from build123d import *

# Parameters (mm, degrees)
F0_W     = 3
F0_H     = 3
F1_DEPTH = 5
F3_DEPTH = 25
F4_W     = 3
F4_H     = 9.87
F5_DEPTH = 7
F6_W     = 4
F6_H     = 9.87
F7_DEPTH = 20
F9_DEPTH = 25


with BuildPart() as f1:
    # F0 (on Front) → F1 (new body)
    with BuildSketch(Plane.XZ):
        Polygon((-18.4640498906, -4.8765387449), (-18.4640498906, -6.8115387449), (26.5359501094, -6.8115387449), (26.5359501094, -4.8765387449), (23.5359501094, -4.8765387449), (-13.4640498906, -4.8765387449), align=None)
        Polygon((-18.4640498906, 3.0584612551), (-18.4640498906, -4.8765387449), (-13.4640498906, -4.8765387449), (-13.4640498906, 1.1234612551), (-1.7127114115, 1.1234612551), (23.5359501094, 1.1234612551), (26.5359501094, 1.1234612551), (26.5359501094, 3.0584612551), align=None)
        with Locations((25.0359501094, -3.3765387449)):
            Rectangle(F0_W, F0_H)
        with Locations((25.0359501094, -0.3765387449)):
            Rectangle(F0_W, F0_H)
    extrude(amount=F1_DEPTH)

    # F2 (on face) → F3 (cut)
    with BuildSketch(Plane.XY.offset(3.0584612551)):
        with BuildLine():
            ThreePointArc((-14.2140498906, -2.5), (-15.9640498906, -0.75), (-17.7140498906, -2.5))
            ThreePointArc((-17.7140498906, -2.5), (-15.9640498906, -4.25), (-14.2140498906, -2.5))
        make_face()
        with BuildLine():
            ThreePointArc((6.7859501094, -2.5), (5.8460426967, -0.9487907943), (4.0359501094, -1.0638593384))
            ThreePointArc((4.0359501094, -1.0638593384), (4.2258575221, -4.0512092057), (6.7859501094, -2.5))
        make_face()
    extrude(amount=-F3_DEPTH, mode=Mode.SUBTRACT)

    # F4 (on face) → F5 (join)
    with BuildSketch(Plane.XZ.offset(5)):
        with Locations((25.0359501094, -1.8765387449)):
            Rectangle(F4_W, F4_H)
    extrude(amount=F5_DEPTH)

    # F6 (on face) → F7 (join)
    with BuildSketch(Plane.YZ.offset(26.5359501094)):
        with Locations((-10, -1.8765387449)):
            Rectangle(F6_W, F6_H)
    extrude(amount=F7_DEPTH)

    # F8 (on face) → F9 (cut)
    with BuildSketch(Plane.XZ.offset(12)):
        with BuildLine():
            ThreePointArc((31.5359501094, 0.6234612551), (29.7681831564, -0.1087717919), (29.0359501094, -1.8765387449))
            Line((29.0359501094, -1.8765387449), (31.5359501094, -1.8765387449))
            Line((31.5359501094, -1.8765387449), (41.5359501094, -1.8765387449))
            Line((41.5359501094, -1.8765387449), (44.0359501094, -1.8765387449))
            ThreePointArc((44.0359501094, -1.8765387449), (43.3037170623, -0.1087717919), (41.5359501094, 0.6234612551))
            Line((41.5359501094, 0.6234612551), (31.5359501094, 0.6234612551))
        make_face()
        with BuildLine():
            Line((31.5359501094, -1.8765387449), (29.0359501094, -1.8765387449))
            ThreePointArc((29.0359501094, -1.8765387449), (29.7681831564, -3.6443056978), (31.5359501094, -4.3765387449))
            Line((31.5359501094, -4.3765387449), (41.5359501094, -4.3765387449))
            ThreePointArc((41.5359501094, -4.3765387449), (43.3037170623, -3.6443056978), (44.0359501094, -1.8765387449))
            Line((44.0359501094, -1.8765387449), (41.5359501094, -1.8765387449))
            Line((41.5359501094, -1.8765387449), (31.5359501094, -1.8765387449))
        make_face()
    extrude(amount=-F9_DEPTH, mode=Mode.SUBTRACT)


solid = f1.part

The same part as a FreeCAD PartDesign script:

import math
import FreeCAD as App
import Part
import Sketcher
from FreeCAD import Vector

doc = App.newDocument("Part")
body = doc.addObject("PartDesign::Body", "Body")

sketch1 = body.newObject("Sketcher::SketchObject", "Sketch")
sketch1.AttachmentSupport = (doc.getObject("XZ_Plane"), [""])
sketch1.MapMode = "FlatFace"
sketch1.addGeometry(Part.LineSegment(Vector(-18.46405, -6.811539, 0), Vector(26.53595, -6.811539, 0)), False)
sketch1.addGeometry(Part.LineSegment(Vector(26.53595, -6.811539, 0), Vector(26.53595, 3.058461, 0)), False)
sketch1.addGeometry(Part.LineSegment(Vector(26.53595, 3.058461, 0), Vector(-18.46405, 3.058461, 0)), False)
sketch1.addGeometry(Part.LineSegment(Vector(-18.46405, 3.058461, 0), Vector(-18.46405, -6.811539, 0)), False)
sketch1.addGeometry(Part.LineSegment(Vector(23.53595, -4.876539, 0), Vector(-13.46405, -4.876539, 0)), False)
sketch1.addGeometry(Part.LineSegment(Vector(-13.46405, -4.876539, 0), Vector(-13.46405, 1.123461, 0)), False)
sketch1.addGeometry(Part.LineSegment(Vector(-13.46405, 1.123461, 0), Vector(23.53595, 1.123461, 0)), False)
sketch1.addGeometry(Part.LineSegment(Vector(23.53595, 1.123461, 0), Vector(23.53595, -4.876539, 0)), False)
sketch1.addConstraint(Sketcher.Constraint("Coincident", 0, 2, 1, 1))
sketch1.addConstraint(Sketcher.Constraint("Coincident", 1, 2, 2, 1))
sketch1.addConstraint(Sketcher.Constraint("Coincident", 2, 2, 3, 1))
sketch1.addConstraint(Sketcher.Constraint("Coincident", 3, 2, 0, 1))
sketch1.addConstraint(Sketcher.Constraint("Coincident", 4, 2, 5, 1))
sketch1.addConstraint(Sketcher.Constraint("Coincident", 5, 2, 6, 1))
sketch1.addConstraint(Sketcher.Constraint("Coincident", 6, 2, 7, 1))
sketch1.addConstraint(Sketcher.Constraint("Coincident", 7, 2, 4, 1))
sketch1.addConstraint(Sketcher.Constraint("Horizontal", 0))
sketch1.addConstraint(Sketcher.Constraint("Vertical", 1))
sketch1.addConstraint(Sketcher.Constraint("Horizontal", 2))
sketch1.addConstraint(Sketcher.Constraint("Vertical", 3))
sketch1.addConstraint(Sketcher.Constraint("Horizontal", 4))
sketch1.addConstraint(Sketcher.Constraint("Vertical", 5))
sketch1.addConstraint(Sketcher.Constraint("Horizontal", 6))
sketch1.addConstraint(Sketcher.Constraint("Vertical", 7))
sketch1.addConstraint(Sketcher.Constraint("DistanceX", 0, 1, 0, 2, 45.0))
sketch1.addConstraint(Sketcher.Constraint("DistanceX", 4, 2, 4, 1, 37.0))
sketch1.addConstraint(Sketcher.Constraint("DistanceY", 5, 1, 5, 2, 6.0))
sketch1.addConstraint(Sketcher.Constraint("DistanceX", 3, 2, 4, 2, 5.0))
sketch1.addConstraint(Sketcher.Constraint("DistanceY", 1, 1, 1, 2, 9.87))
sketch1.addConstraint(Sketcher.Constraint("DistanceY", 3, 2, 4, 2, 1.935))
sketch1.addConstraint(Sketcher.Constraint("DistanceX", -1, 1, 0, 2, 26.53595))
sketch1.addConstraint(Sketcher.Constraint("DistanceY", 0, 2, -1, 1, 6.811539))
pad1 = body.newObject("PartDesign::Pad", "Pad")
pad1.Profile = sketch1
pad1.Length = 5

sketch2 = body.newObject("Sketcher::SketchObject", "Sketch001")
sketch2.AttachmentSupport = (doc.getObject("XY_Plane"), [""])
sketch2.MapMode = "FlatFace"
sketch2.AttachmentOffset = App.Placement(Vector(0, 0, 3.058461), App.Rotation())
sketch2.addGeometry(Part.Circle(Vector(-15.96405, -2.5, 0), Vector(0, 0, 1), 1.75), False)
sketch2.addGeometry(Part.ArcOfCircle(Part.Circle(Vector(5.03595, -2.5, 0), Vector(0, 0, 1), 1.75), math.radians(0), math.radians(124.849905)), False)
sketch2.addGeometry(Part.ArcOfCircle(Part.Circle(Vector(5.03595, -2.5, 0), Vector(0, 0, 1), 1.75), math.radians(124.849905), math.radians(360)), False)
sketch2.addConstraint(Sketcher.Constraint("Tangent", 1, 1, 2, 2))
sketch2.addConstraint(Sketcher.Constraint("Coincident", 2, 1, 1, 2))
sketch2.addConstraint(Sketcher.Constraint("Equal", 0, 1))
sketch2.addConstraint(Sketcher.Constraint("Horizontal", 0, 3, 1, 3))
sketch2.addConstraint(Sketcher.Constraint("Horizontal", 2, 3, 1, 1))
sketch2.addConstraint(Sketcher.Constraint("Diameter", 0, 3.5))
sketch2.addConstraint(Sketcher.Constraint("DistanceX", 0, 3, 1, 3, 21.0))
sketch2.addConstraint(Sketcher.Constraint("DistanceX", 2, 1, 1, 3, 1.0))
sketch2.addConstraint(Sketcher.Constraint("DistanceY", 0, 3, -1, 1, 2.5))
sketch2.addConstraint(Sketcher.Constraint("DistanceX", 0, 3, -1, 1, 15.96405))
pocket1 = body.newObject("PartDesign::Pocket", "Pocket")
pocket1.Profile = sketch2
pocket1.Length = 25

sketch3 = body.newObject("Sketcher::SketchObject", "Sketch002")
sketch3.AttachmentSupport = (doc.getObject("XZ_Plane"), [""])
sketch3.MapMode = "FlatFace"
sketch3.AttachmentOffset = App.Placement(Vector(0, 0, 5), App.Rotation())
sketch3.addGeometry(Part.LineSegment(Vector(23.53595, 3.058461, 0), Vector(23.53595, -6.811539, 0)), False)
sketch3.addGeometry(Part.LineSegment(Vector(23.53595, -6.811539, 0), Vector(26.53595, -6.811539, 0)), False)
sketch3.addGeometry(Part.LineSegment(Vector(26.53595, -6.811539, 0), Vector(26.53595, 3.058461, 0)), False)
sketch3.addGeometry(Part.LineSegment(Vector(26.53595, 3.058461, 0), Vector(23.53595, 3.058461, 0)), False)
sketch3.addConstraint(Sketcher.Constraint("Coincident", 0, 2, 1, 1))
sketch3.addConstraint(Sketcher.Constraint("Coincident", 1, 2, 2, 1))
sketch3.addConstraint(Sketcher.Constraint("Coincident", 2, 2, 3, 1))
sketch3.addConstraint(Sketcher.Constraint("Coincident", 3, 2, 0, 1))
sketch3.addConstraint(Sketcher.Constraint("Vertical", 0))
sketch3.addConstraint(Sketcher.Constraint("Horizontal", 1))
sketch3.addConstraint(Sketcher.Constraint("Vertical", 2))
sketch3.addConstraint(Sketcher.Constraint("Horizontal", 3))
sketch3.addConstraint(Sketcher.Constraint("DistanceX", 1, 1, 1, 2, 3.0))
sketch3.addConstraint(Sketcher.Constraint("DistanceY", 0, 2, 0, 1, 9.87))
sketch3.addConstraint(Sketcher.Constraint("DistanceX", -1, 1, 0, 2, 23.53595))
sketch3.addConstraint(Sketcher.Constraint("DistanceY", 0, 2, -1, 1, 6.811539))
pad2 = body.newObject("PartDesign::Pad", "Pad001")
pad2.Profile = sketch3
pad2.Length = 7

sketch4 = body.newObject("Sketcher::SketchObject", "Sketch003")
sketch4.AttachmentSupport = (doc.getObject("YZ_Plane"), [""])
sketch4.MapMode = "FlatFace"
sketch4.AttachmentOffset = App.Placement(Vector(0, 0, 26.53595), App.Rotation())
sketch4.addGeometry(Part.LineSegment(Vector(-12, 3.058461, 0), Vector(-12, -6.811539, 0)), False)
sketch4.addGeometry(Part.LineSegment(Vector(-12, -6.811539, 0), Vector(-8, -6.811539, 0)), False)
sketch4.addGeometry(Part.LineSegment(Vector(-8, -6.811539, 0), Vector(-8, 3.058461, 0)), False)
sketch4.addGeometry(Part.LineSegment(Vector(-8, 3.058461, 0), Vector(-12, 3.058461, 0)), False)
sketch4.addConstraint(Sketcher.Constraint("Coincident", 0, 2, 1, 1))
sketch4.addConstraint(Sketcher.Constraint("Coincident", 1, 2, 2, 1))
sketch4.addConstraint(Sketcher.Constraint("Coincident", 2, 2, 3, 1))
sketch4.addConstraint(Sketcher.Constraint("Coincident", 3, 2, 0, 1))
sketch4.addConstraint(Sketcher.Constraint("Vertical", 0))
sketch4.addConstraint(Sketcher.Constraint("Horizontal", 1))
sketch4.addConstraint(Sketcher.Constraint("Vertical", 2))
sketch4.addConstraint(Sketcher.Constraint("Horizontal", 3))
sketch4.addConstraint(Sketcher.Constraint("DistanceX", 1, 1, 1, 2, 4.0))
sketch4.addConstraint(Sketcher.Constraint("DistanceX", 0, 2, -1, 1, 12.0))
sketch4.addConstraint(Sketcher.Constraint("DistanceY", 0, 2, 0, 1, 9.87))
sketch4.addConstraint(Sketcher.Constraint("DistanceY", 0, 2, -1, 1, 6.811539))
pad3 = body.newObject("PartDesign::Pad", "Pad002")
pad3.Profile = sketch4
pad3.Length = 20

sketch5 = body.newObject("Sketcher::SketchObject", "Sketch004")
sketch5.AttachmentSupport = (doc.getObject("XZ_Plane"), [""])
sketch5.MapMode = "FlatFace"
sketch5.AttachmentOffset = App.Placement(Vector(0, 0, 12), App.Rotation())
sketch5.addGeometry(Part.ArcOfCircle(Part.Circle(Vector(31.53595, -1.876539, 0), Vector(0, 0, 1), 2.5), math.radians(90), math.radians(180)), False)
sketch5.addGeometry(Part.ArcOfCircle(Part.Circle(Vector(31.53595, -1.876539, 0), Vector(0, 0, 1), 2.5), math.radians(180), math.radians(270)), False)
sketch5.addGeometry(Part.LineSegment(Vector(31.53595, -4.376539, 0), Vector(41.53595, -4.376539, 0)), False)
sketch5.addGeometry(Part.ArcOfCircle(Part.Circle(Vector(41.53595, -1.876539, 0), Vector(0, 0, 1), 2.5), math.radians(-90), math.radians(0)), False)
sketch5.addGeometry(Part.ArcOfCircle(Part.Circle(Vector(41.53595, -1.876539, 0), Vector(0, 0, 1), 2.5), math.radians(0), math.radians(90)), False)
sketch5.addGeometry(Part.LineSegment(Vector(41.53595, 0.623461, 0), Vector(31.53595, 0.623461, 0)), False)
sketch5.addConstraint(Sketcher.Constraint("Tangent", 0, 2, 1, 1))
sketch5.addConstraint(Sketcher.Constraint("Tangent", 1, 2, 2, 1))
sketch5.addConstraint(Sketcher.Constraint("Tangent", 2, 2, 3, 1))
sketch5.addConstraint(Sketcher.Constraint("Tangent", 3, 2, 4, 1))
sketch5.addConstraint(Sketcher.Constraint("Tangent", 4, 2, 5, 1))
sketch5.addConstraint(Sketcher.Constraint("Tangent", 5, 2, 0, 1))
sketch5.addConstraint(Sketcher.Constraint("Horizontal", 2))
sketch5.addConstraint(Sketcher.Constraint("Horizontal", 5))
sketch5.addConstraint(Sketcher.Constraint("Equal", 0, 1))
sketch5.addConstraint(Sketcher.Constraint("Equal", 1, 3))
sketch5.addConstraint(Sketcher.Constraint("Horizontal", 4, 3, 0, 2))
sketch5.addConstraint(Sketcher.Constraint("Horizontal", 0, 2, 3, 2))
sketch5.addConstraint(Sketcher.Constraint("Radius", 0, 2.5))
sketch5.addConstraint(Sketcher.Constraint("DistanceX", 2, 1, 2, 2, 10.0))
sketch5.addConstraint(Sketcher.Constraint("DistanceX", -1, 1, 0, 3, 31.53595))
sketch5.addConstraint(Sketcher.Constraint("DistanceY", 0, 3, -1, 1, 1.876539))
pocket2 = body.newObject("PartDesign::Pocket", "Pocket001")
pocket2.Profile = sketch5
pocket2.Length = 25

doc.recompute()
